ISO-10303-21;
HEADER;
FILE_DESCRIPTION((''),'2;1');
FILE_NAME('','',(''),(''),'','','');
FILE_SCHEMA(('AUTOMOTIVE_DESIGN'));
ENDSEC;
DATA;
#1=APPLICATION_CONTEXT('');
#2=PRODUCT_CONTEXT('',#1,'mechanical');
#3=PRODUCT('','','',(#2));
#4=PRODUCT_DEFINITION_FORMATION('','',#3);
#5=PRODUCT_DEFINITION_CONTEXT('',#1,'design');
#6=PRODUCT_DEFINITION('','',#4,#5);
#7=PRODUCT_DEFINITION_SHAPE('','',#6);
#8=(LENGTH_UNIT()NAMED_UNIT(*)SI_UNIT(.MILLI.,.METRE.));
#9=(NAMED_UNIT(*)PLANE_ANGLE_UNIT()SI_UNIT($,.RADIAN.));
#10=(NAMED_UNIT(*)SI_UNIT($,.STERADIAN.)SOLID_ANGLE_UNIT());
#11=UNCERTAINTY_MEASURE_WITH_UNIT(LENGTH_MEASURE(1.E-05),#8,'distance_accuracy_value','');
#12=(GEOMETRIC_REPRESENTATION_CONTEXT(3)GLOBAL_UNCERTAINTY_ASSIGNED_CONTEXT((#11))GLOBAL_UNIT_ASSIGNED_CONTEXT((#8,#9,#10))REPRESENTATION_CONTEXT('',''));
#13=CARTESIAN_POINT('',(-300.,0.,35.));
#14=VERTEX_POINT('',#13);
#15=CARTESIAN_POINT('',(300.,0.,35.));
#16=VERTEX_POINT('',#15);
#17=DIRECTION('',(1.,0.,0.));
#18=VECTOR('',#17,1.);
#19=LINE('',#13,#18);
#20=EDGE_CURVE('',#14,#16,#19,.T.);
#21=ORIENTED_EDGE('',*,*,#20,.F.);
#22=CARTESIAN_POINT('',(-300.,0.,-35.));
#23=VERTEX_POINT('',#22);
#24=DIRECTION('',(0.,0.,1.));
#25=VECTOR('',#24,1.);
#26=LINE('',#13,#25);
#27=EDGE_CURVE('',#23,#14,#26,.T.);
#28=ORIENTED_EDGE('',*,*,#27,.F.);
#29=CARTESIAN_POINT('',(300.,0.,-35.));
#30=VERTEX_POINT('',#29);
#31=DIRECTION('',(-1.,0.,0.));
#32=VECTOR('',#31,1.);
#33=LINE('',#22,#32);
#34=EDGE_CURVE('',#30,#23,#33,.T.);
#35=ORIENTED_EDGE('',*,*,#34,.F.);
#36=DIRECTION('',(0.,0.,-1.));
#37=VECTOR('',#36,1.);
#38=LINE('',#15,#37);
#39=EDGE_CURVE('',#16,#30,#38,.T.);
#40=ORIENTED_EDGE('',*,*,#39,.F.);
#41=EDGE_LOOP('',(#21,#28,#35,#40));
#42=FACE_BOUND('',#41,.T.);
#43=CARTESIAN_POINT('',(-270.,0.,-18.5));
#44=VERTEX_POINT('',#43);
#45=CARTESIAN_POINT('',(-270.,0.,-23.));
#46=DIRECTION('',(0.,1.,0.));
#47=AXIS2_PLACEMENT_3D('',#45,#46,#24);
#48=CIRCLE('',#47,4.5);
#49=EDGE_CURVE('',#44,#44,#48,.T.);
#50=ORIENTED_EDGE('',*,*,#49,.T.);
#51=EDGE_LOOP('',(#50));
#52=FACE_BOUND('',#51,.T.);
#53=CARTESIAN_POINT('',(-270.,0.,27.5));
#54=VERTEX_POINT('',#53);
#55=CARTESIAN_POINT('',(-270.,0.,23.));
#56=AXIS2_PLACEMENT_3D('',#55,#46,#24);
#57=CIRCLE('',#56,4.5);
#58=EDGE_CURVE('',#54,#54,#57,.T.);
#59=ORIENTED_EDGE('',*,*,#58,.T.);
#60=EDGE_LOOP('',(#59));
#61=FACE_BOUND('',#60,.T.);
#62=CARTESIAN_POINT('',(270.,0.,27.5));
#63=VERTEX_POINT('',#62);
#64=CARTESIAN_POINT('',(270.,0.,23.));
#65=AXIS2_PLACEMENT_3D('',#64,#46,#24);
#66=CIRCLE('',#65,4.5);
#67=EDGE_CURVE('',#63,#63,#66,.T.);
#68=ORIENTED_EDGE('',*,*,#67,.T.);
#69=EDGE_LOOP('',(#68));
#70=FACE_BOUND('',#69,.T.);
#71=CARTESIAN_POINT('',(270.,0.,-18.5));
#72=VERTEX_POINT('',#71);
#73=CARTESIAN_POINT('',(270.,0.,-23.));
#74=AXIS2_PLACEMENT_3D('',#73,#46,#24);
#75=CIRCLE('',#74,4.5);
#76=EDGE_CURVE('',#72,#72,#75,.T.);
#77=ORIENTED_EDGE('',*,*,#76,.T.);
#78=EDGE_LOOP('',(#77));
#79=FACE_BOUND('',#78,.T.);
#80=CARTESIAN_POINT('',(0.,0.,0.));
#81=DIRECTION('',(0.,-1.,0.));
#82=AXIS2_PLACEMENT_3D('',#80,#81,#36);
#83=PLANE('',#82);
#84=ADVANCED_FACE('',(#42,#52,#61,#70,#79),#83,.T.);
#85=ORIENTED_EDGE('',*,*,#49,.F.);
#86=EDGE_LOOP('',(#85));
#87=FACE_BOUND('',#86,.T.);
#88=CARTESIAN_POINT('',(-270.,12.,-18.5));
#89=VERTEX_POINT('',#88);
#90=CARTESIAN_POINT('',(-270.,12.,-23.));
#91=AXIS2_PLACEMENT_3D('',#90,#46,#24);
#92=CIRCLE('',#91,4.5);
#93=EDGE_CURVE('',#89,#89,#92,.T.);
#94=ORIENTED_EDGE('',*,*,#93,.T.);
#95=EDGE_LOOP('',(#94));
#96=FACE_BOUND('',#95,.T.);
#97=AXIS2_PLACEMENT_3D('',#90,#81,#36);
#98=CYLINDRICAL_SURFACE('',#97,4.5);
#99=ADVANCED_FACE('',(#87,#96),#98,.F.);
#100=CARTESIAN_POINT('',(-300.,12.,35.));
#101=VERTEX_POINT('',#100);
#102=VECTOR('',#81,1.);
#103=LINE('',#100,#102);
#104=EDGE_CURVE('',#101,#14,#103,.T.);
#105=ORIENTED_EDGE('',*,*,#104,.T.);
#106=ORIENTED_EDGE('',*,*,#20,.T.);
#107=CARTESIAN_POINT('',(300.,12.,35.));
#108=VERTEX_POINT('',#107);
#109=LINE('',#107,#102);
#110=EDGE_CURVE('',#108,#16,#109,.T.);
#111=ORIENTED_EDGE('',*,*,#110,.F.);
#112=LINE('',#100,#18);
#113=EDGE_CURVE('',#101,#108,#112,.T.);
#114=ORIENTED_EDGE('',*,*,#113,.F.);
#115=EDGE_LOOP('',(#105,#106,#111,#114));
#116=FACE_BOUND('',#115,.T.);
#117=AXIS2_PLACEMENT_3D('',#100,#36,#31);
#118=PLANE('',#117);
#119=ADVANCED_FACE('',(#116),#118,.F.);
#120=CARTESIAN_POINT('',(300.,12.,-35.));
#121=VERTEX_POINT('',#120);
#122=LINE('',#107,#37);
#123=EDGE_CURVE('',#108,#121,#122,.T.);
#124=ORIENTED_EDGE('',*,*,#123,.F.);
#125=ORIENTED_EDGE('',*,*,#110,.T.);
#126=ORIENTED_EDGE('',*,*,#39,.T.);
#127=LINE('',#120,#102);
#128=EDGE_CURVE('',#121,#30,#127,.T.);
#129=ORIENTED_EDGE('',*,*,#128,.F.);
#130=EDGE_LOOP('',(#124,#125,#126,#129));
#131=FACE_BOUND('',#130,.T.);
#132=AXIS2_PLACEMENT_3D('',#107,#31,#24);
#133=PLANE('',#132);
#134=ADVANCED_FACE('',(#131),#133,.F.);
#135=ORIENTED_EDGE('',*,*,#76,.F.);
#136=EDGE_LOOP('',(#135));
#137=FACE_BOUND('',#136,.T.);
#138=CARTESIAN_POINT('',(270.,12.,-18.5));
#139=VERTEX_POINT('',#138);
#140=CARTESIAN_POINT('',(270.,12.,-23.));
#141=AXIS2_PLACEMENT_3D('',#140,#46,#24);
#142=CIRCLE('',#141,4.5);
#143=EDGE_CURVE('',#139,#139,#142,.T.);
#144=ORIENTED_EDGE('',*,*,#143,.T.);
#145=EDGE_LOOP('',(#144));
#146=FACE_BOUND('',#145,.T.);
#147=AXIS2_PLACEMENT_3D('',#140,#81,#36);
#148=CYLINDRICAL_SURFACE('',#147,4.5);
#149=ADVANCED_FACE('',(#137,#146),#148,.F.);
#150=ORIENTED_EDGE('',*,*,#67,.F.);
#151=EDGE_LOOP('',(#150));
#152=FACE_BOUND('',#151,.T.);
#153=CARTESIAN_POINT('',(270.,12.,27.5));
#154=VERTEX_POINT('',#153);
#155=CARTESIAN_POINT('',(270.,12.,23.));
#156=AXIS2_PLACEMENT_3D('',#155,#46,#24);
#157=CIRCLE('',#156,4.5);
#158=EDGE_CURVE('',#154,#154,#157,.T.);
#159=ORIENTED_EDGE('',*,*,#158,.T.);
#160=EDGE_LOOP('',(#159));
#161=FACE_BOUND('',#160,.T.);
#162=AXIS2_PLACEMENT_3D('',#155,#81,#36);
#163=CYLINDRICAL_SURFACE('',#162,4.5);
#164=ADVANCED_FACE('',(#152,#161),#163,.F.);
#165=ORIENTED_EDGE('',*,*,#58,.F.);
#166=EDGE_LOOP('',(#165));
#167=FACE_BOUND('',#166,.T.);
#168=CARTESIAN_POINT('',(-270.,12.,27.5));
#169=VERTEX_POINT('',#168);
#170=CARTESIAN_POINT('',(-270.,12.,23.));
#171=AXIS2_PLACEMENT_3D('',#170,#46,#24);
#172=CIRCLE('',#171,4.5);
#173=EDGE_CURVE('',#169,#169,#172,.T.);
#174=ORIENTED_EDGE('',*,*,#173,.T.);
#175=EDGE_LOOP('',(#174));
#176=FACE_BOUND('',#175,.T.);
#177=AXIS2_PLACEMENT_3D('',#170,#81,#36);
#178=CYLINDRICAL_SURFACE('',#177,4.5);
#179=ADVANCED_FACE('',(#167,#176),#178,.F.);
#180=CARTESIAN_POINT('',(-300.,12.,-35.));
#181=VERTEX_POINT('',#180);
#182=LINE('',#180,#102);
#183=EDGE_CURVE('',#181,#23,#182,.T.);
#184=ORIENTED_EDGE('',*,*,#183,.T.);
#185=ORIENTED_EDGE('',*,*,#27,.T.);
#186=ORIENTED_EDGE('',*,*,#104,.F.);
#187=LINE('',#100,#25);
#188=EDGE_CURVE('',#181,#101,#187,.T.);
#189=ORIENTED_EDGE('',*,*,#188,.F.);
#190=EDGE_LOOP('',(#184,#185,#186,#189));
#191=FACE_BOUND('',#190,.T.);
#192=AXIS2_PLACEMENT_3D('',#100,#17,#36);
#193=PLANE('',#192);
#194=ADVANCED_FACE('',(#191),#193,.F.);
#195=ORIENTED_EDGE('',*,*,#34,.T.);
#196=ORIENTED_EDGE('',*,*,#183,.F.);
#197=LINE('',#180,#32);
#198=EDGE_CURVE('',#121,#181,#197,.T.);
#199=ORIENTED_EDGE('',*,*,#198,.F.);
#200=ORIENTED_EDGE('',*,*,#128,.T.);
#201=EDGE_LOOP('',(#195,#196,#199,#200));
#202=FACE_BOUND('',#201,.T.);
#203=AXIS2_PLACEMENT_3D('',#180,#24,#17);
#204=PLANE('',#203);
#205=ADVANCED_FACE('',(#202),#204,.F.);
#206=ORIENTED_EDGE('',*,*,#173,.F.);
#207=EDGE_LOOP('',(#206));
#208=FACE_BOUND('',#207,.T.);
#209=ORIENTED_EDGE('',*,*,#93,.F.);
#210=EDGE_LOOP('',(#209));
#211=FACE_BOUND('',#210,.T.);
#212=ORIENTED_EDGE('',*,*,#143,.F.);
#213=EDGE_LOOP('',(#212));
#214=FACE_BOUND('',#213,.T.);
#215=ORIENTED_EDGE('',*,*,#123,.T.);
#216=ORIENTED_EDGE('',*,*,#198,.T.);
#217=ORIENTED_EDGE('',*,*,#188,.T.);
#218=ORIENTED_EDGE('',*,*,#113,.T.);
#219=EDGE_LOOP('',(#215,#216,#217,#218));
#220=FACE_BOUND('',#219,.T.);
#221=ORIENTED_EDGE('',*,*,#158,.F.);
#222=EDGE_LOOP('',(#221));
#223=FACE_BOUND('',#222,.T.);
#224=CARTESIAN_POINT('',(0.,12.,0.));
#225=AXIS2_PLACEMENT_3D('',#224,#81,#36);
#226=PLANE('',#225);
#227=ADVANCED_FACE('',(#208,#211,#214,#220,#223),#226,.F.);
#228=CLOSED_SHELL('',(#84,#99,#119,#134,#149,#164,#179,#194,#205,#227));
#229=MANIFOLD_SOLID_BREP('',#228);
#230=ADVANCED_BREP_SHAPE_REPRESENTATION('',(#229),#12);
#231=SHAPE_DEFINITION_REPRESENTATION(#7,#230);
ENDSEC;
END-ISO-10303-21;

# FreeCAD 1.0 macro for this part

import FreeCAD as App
import Part
import Sketcher


def add_polygon(sketch, points):
    """Adds a closed chain of lines whose ends are joined by coincident constraints."""
    first, n = sketch.GeometryCount, len(points)
    for a, b in zip(points, points[1:] + points[:1]):
        sketch.addGeometry(Part.LineSegment(App.Vector(*a, 0), App.Vector(*b, 0)), False)
    for i in range(n):
        sketch.addConstraint(Sketcher.Constraint("Coincident", first + i, 2, first + (i + 1) % n, 1))

doc = App.newDocument("Part")
body = doc.addObject("PartDesign::Body", "Body")

# Sketch on XZ plane
sketch1 = doc.addObject("Sketcher::SketchObject", "Sketch")
body.addObject(sketch1)
sketch1.AttachmentSupport = (doc.XZ_Plane, [""])
sketch1.MapMode = "FlatFace"
add_polygon(sketch1, [(-300, -35), (-300, 35), (300, 35), (300, -35)])  # lines 0-3
sketch1.addGeometry(Part.Circle(App.Vector(-270, 23, 0), App.Vector(0, 0, 1), 4.5), False)  # 4
sketch1.addGeometry(Part.Circle(App.Vector(270, 23, 0), App.Vector(0, 0, 1), 4.5), False)  # 5
sketch1.addGeometry(Part.Circle(App.Vector(-270, -23, 0), App.Vector(0, 0, 1), 4.5), False)  # 6
sketch1.addGeometry(Part.Circle(App.Vector(270, -23, 0), App.Vector(0, 0, 1), 4.5), False)  # 7
sketch1.addConstraint(Sketcher.Constraint("Vertical", 0))
sketch1.addConstraint(Sketcher.Constraint("Horizontal", 1))
sketch1.addConstraint(Sketcher.Constraint("Vertical", 2))
sketch1.addConstraint(Sketcher.Constraint("Horizontal", 3))
sketch1.addConstraint(Sketcher.Constraint("Equal", 4, 5))
sketch1.addConstraint(Sketcher.Constraint("Equal", 5, 6))
sketch1.addConstraint(Sketcher.Constraint("Equal", 6, 7))
sketch1.addConstraint(Sketcher.Constraint("Symmetric", 5, 3, 6, 3, -1, 1))
sketch1.addConstraint(Sketcher.Constraint("Symmetric", 4, 3, 7, 3, -1, 1))
sketch1.addConstraint(Sketcher.Constraint("Symmetric", 0, 2, 2, 2, -1, 1))
sketch1.addConstraint(Sketcher.Constraint("Symmetric", 4, 3, 5, 3, -2))
sketch1.addConstraint(Sketcher.Constraint("Diameter", 4, 9.0))
sketch1.addConstraint(Sketcher.Constraint("DistanceX", 1, 1, 1, 2, 600.0))
sketch1.addConstraint(Sketcher.Constraint("DistanceY", 0, 1, 0, 2, 70.0))
sketch1.addConstraint(Sketcher.Constraint("DistanceX", 4, 3, -1, 1, 270.0))
sketch1.addConstraint(Sketcher.Constraint("DistanceY", -1, 1, 4, 3, 23.0))
pad1 = doc.addObject("PartDesign::Pad", "Pad")
body.addObject(pad1)
pad1.Profile = sketch1
pad1.Length = 12
pad1.Reversed = True

doc.recompute()
